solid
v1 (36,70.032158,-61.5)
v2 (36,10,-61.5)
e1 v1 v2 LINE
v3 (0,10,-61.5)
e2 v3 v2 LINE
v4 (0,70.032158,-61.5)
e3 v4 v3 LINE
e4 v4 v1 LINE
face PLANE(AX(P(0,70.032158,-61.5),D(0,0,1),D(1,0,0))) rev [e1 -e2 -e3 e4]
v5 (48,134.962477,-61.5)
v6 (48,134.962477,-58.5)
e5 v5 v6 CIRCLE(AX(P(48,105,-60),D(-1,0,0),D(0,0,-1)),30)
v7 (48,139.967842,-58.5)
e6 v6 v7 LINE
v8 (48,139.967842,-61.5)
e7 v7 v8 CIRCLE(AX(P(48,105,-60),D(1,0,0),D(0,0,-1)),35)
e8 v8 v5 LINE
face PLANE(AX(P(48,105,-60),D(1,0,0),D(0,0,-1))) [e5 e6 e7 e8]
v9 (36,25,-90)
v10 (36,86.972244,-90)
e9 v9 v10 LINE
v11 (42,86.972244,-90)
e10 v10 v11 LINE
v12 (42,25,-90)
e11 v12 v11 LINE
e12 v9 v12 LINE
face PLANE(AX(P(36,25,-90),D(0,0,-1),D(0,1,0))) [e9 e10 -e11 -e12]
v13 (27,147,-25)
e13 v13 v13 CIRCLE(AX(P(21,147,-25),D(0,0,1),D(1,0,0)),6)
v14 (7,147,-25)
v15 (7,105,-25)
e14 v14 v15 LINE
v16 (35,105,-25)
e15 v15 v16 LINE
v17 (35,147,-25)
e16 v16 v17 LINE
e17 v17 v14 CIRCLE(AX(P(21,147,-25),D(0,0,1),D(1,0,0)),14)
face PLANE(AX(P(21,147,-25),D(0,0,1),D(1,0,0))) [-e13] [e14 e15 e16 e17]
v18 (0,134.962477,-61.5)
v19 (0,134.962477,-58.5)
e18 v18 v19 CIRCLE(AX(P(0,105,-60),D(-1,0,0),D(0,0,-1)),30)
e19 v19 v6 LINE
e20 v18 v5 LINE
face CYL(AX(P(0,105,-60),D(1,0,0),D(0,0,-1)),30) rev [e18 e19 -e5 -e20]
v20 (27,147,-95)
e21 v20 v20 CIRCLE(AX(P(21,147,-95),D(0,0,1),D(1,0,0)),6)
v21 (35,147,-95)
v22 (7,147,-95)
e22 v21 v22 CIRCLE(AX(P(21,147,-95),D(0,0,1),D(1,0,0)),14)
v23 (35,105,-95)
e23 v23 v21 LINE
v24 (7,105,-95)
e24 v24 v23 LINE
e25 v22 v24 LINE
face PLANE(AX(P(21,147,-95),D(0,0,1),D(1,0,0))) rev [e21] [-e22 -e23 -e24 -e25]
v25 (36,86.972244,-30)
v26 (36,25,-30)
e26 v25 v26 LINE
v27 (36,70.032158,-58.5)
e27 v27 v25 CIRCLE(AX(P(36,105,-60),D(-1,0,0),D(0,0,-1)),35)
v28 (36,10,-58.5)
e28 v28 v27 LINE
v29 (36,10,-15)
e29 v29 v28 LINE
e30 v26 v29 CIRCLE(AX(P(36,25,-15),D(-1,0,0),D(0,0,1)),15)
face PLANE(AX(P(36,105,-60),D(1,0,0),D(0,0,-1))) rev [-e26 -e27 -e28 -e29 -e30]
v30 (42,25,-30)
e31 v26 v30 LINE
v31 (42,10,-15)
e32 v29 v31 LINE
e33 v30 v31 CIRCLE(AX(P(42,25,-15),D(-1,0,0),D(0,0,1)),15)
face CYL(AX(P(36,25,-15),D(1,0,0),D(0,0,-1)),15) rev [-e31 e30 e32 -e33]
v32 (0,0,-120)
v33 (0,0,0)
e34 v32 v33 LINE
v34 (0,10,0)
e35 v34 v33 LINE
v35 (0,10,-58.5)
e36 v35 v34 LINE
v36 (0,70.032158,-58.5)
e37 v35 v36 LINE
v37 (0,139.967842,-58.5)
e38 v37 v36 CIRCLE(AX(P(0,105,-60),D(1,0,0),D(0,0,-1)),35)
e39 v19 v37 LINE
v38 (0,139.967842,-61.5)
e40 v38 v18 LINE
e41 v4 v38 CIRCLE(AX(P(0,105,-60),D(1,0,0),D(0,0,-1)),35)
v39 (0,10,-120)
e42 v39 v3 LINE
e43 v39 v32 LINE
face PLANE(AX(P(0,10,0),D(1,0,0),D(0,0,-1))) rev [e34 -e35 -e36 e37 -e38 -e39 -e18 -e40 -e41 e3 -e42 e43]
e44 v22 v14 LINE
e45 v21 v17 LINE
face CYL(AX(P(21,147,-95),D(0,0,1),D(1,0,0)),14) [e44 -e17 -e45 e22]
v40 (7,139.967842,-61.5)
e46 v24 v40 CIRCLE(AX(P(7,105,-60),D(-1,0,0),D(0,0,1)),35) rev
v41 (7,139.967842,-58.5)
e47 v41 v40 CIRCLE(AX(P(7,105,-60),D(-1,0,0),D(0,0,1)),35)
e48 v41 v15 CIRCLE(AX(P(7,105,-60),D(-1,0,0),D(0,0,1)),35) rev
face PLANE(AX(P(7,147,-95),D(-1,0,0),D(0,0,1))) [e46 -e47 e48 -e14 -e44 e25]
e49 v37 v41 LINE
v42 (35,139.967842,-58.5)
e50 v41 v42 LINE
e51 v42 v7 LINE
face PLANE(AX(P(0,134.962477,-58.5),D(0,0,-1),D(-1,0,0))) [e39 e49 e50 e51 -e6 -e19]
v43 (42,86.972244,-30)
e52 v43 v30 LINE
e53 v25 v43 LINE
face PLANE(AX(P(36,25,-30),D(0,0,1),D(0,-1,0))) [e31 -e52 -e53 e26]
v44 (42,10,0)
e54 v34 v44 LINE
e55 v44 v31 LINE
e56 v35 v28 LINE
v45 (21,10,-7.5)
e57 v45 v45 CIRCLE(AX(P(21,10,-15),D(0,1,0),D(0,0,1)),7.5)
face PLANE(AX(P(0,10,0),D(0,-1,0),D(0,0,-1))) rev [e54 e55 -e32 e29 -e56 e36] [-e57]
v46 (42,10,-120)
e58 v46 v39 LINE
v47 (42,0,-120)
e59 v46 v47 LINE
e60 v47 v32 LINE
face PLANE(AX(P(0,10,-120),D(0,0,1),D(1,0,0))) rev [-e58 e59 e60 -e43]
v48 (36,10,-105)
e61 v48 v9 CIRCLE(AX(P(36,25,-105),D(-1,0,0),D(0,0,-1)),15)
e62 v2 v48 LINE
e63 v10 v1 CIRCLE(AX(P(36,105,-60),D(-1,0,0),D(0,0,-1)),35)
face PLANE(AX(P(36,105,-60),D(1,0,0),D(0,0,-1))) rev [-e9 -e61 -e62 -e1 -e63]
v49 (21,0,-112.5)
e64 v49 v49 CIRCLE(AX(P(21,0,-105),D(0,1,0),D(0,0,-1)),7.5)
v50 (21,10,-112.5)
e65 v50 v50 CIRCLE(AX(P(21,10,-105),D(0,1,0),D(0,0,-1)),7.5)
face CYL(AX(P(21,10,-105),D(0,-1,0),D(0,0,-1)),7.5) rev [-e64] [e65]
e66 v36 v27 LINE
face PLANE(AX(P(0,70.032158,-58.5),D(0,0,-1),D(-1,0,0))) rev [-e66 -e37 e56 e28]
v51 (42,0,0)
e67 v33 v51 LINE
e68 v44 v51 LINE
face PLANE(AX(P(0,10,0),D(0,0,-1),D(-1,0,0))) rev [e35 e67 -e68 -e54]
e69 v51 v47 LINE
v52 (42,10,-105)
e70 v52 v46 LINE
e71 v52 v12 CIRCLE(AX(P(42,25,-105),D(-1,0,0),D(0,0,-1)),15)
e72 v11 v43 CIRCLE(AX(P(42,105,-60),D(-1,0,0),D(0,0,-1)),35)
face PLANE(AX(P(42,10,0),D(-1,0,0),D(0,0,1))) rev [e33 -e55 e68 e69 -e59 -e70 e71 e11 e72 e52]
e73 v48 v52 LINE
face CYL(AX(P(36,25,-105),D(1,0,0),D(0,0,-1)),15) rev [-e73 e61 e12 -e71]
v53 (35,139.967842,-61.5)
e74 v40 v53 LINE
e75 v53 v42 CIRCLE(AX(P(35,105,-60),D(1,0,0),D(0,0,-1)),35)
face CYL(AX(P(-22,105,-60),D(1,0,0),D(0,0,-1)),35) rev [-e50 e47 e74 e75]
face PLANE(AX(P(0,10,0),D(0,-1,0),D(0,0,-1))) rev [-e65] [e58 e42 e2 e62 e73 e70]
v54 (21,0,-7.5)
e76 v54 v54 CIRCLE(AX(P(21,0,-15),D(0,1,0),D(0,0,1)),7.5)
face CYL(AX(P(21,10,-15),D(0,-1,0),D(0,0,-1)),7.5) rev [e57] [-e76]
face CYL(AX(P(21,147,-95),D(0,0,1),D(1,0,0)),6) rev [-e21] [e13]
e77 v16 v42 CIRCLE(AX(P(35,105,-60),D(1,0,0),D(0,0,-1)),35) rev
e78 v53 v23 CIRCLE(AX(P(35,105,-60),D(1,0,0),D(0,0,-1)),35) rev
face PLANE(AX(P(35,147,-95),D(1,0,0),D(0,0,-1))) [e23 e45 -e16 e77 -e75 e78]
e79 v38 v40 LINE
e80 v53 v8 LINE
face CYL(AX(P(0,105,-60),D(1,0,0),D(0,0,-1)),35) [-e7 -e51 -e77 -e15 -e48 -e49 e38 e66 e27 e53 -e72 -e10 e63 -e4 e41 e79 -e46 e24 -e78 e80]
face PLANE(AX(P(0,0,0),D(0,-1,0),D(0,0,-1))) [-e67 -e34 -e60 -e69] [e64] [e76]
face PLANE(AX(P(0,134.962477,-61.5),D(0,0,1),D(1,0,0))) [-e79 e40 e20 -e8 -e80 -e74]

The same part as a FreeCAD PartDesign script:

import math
import FreeCAD as App
import Part
import Sketcher
from FreeCAD import Vector


def add_polygon(sketch, points):
    """Adds a closed chain of lines whose ends are joined by coincident constraints."""
    first, n = sketch.GeometryCount, len(points)
    for a, b in zip(points, points[1:] + points[:1]):
        sketch.addGeometry(Part.LineSegment(App.Vector(*a, 0), App.Vector(*b, 0)), False)
    for i in range(n):
        sketch.addConstraint(Sketcher.Constraint("Coincident", first + i, 2, first + (i + 1) % n, 1))

doc = App.newDocument("Part")
params = doc.addObject("Spreadsheet::Sheet", "Params")
for row, (alias, value) in enumerate([
    ("sketch1_diameter", "15 mm"),
    ("sketch1_width", "42 mm"),
    ("sketch1_height", "120 mm"),
    ("pad1_length", "10 mm"),
    ("sketch2_radius", "35 mm"),
    ("sketch2_radius2", "15 mm"),
    ("sketch2_height", "90 mm"),
    ("pad2_length", "6 mm"),
    ("sketch3_radius", "30 mm"),
    ("sketch3_radius2", "35 mm"),
    ("pad3_length", "6 mm"),
    ("pad3_length2", "42 mm"),
    ("sketch4_radius", "35 mm"),
    ("sketch4_height", "3 mm"),
    ("pad4_length", "36 mm"),
    ("sketch5_diameter", "12 mm"),
    ("sketch5_radius", "14 mm"),
    ("sketch5_height", "42 mm"),
    ("pad5_length", "70 mm"),
    ("sketch6_radius", "30 mm"),
    ("sketch6_radius2", "35 mm"),
    ("pocket1_length", "70 mm"),
], start=1):
    params.set(f"A{row}", alias)
    params.set(f"B{row}", "=" + value)
    params.setAlias(f"B{row}", alias)

body = doc.addObject("PartDesign::Body", "Body")

# Sketch on XZ plane
sketch1 = body.newObject("Sketcher::SketchObject", "Sketch")
sketch1.AttachmentSupport = (doc.getObject("XZ_Plane"), [""])
sketch1.MapMode = "FlatFace"
add_polygon(sketch1, [(0, -120), (0, 0), (42, 0), (42, -120)])  # lines 0-3
sketch1.addGeometry(Part.Circle(Vector(21, -15, 0), Vector(0, 0, 1), 7.5), False)  # 4
sketch1.addGeometry(Part.Circle(Vector(21, -105, 0), Vector(0, 0, 1), 7.5), False)  # 5
sketch1.addConstraint([
    Sketcher.Constraint("Vertical", 0),
    Sketcher.Constraint("Horizontal", 1),
    Sketcher.Constraint("Vertical", 2),
    Sketcher.Constraint("Horizontal", 3),
    Sketcher.Constraint("Coincident", 0, 2, -1, 1),
    Sketcher.Constraint("Equal", 4, 5),
    Sketcher.Constraint("Vertical", 4, 3, 5, 3),
    Sketcher.Constraint("Diameter", 4, 15.0),
    Sketcher.Constraint("DistanceX", 1, 1, 1, 2, 42.0),
    Sketcher.Constraint("DistanceY", 0, 1, 0, 2, 120.0),
    Sketcher.Constraint("DistanceX", -1, 1, 4, 3, 21.0),
    Sketcher.Constraint("DistanceY", 4, 3, -1, 1, 15.0),
    Sketcher.Constraint("DistanceY", 5, 3, -1, 1, 105.0),
])
sketch1.setExpression("Constraints[11]", "Params.sketch1_diameter")
sketch1.setExpression("Constraints[12]", "Params.sketch1_width")
sketch1.setExpression("Constraints[13]", "Params.sketch1_height")
pad1 = body.newObject("PartDesign::Pad", "Pad")
pad1.Profile = sketch1
pad1.setExpression("Length", "Params.pad1_length")
pad1.Reversed = True

# Sketch on YZ plane
sketch2 = body.newObject("Sketcher::SketchObject", "Sketch001")
sketch2.AttachmentSupport = (doc.getObject("YZ_Plane"), [""])
sketch2.MapMode = "FlatFace"
sketch2.AttachmentOffset = App.Placement(Vector(0, 0, 42), App.Rotation())
sketch2.addGeometry([
    Part.LineSegment(Vector(25, -90, 0), Vector(86.972244, -90, 0)),  # 0
    Part.ArcOfCircle(Part.Circle(Vector(105, -60, 0), Vector(0, 0, 1), 35), math.radians(121.002719), math.radians(238.997281)),  # 1
    Part.LineSegment(Vector(86.972244, -30, 0), Vector(25, -30, 0)),  # 2
    Part.ArcOfCircle(Part.Circle(Vector(25, -15, 0), Vector(0, 0, 1), 15), math.radians(180), math.radians(270)),  # 3
    Part.LineSegment(Vector(10, -15, 0), Vector(10, -105, 0)),  # 4
    Part.ArcOfCircle(Part.Circle(Vector(25, -105, 0), Vector(0, 0, 1), 15), math.radians(90), math.radians(180)),  # 5
], False)
sketch2.addConstraint([
    Sketcher.Constraint("Coincident", 0, 2, 1, 2),
    Sketcher.Constraint("Coincident", 1, 1, 2, 1),
    Sketcher.Constraint("Tangent", 2, 2, 3, 2),
    Sketcher.Constraint("Tangent", 3, 1, 4, 1),
    Sketcher.Constraint("Tangent", 4, 2, 5, 2),
    Sketcher.Constraint("Tangent", 5, 1, 0, 1),
    Sketcher.Constraint("Horizontal", 0),
    Sketcher.Constraint("Horizontal", 2),
    Sketcher.Constraint("Vertical", 4),
    Sketcher.Constraint("Equal", 3, 5),
    Sketcher.Constraint("Vertical", 0, 2, 1, 1),
    Sketcher.Constraint("Radius", 1, 35.0),
    Sketcher.Constraint("Radius", 3, 15.0),
    Sketcher.Constraint("DistanceY", 4, 2, 4, 1, 90.0),
    Sketcher.Constraint("DistanceX", -1, 1, 1, 3, 105.0),
    Sketcher.Constraint("DistanceY", 1, 3, -1, 1, 60.0),
    Sketcher.Constraint("DistanceX", -1, 1, 3, 3, 25.0),
])
sketch2.setExpression("Constraints[11]", "Params.sketch2_radius")
sketch2.setExpression("Constraints[12]", "Params.sketch2_radius2")
sketch2.setExpression("Constraints[13]", "Params.sketch2_height")
pad2 = body.newObject("PartDesign::Pad", "Pad001")
pad2.Profile = sketch2
pad2.setExpression("Length", "Params.pad2_length")
pad2.Reversed = True

# Sketch on YZ plane
sketch3 = body.newObject("Sketcher::SketchObject", "Sketch002")
sketch3.AttachmentSupport = (doc.getObject("YZ_Plane"), [""])
sketch3.MapMode = "FlatFace"
sketch3.AttachmentOffset = App.Placement(Vector(0, 0, 42), App.Rotation())
sketch3.addGeometry([
    Part.LineSegment(Vector(139.967842, -61.5, 0), Vector(134.962477, -61.5, 0)),
    Part.ArcOfCircle(Part.Circle(Vector(105, -60, 0), Vector(0, 0, 1), 30), math.radians(2.865984), math.radians(357.134016)),
    Part.LineSegment(Vector(134.962477, -58.5, 0), Vector(139.967842, -58.5, 0)),
    Part.ArcOfCircle(Part.Circle(Vector(105, -60, 0), Vector(0, 0, 1), 35), math.radians(2.456286), math.radians(357.543714)),
], False)
sketch3.addConstraint([
    Sketcher.Constraint("Coincident", 0, 2, 1, 2),
    Sketcher.Constraint("Coincident", 1, 1, 2, 1),
    Sketcher.Constraint("Coincident", 2, 2, 3, 1),
    Sketcher.Constraint("Coincident", 3, 2, 0, 1),
    Sketcher.Constraint("Horizontal", 0),
    Sketcher.Constraint("Horizontal", 2),
    Sketcher.Constraint("Coincident", 3, 3, 1, 3),
    Sketcher.Constraint("Vertical", 0, 2, 1, 1),
    Sketcher.Constraint("Radius", 1, 30.0),
    Sketcher.Constraint("Radius", 3, 35.0),
    Sketcher.Constraint("DistanceX", -1, 1, 1, 3, 105.0),
    Sketcher.Constraint("DistanceY", 1, 3, -1, 1, 60.0),
    Sketcher.Constraint("DistanceY", 0, 2, 1, 1, 3.0),
])
sketch3.setExpression("Constraints[8]", "Params.sketch3_radius")
sketch3.setExpression("Constraints[9]", "Params.sketch3_radius2")
pad3 = body.newObject("PartDesign::Pad", "Pad002")
pad3.Profile = sketch3
pad3.Type = "TwoLengths"
pad3.setExpression("Length", "Params.pad3_length")
pad3.setExpression("Length2", "Params.pad3_length2")

# Sketch on YZ plane
sketch4 = body.newObject("Sketcher::SketchObject", "Sketch003")
sketch4.AttachmentSupport = (doc.getObject("YZ_Plane"), [""])
sketch4.MapMode = "FlatFace"
sketch4.addGeometry([
    Part.LineSegment(Vector(10, -61.5, 0), Vector(10, -58.5, 0)),
    Part.LineSegment(Vector(10, -58.5, 0), Vector(70.032158, -58.5, 0)),
    Part.ArcOfCircle(Part.Circle(Vector(105, -60, 0), Vector(0, 0, 1), 35), math.radians(177.543714), math.radians(182.456286)),
    Part.LineSegment(Vector(70.032158, -61.5, 0), Vector(10, -61.5, 0)),
], False)
sketch4.addConstraint([
    Sketcher.Constraint("Coincident", 0, 2, 1, 1),
    Sketcher.Constraint("Coincident", 1, 2, 2, 1),
    Sketcher.Constraint("Coincident", 2, 2, 3, 1),
    Sketcher.Constraint("Coincident", 3, 2, 0, 1),
    Sketcher.Constraint("Vertical", 0),
    Sketcher.Constraint("Horizontal", 1),
    Sketcher.Constraint("Horizontal", 3),
    Sketcher.Constraint("Vertical", 1, 2, 2, 2),
    Sketcher.Constraint("Radius", 2, 35.0),
    Sketcher.Constraint("DistanceY", 0, 1, 0, 2, 3.0),
    Sketcher.Constraint("DistanceX", -1, 1, 2, 3, 105.0),
    Sketcher.Constraint("DistanceY", 2, 3, -1, 1, 60.0),
    Sketcher.Constraint("DistanceX", -1, 1, 0, 2, 10.0),
])
sketch4.setExpression("Constraints[8]", "Params.sketch4_radius")
sketch4.setExpression("Constraints[9]", "Params.sketch4_height")
pad4 = body.newObject("PartDesign::Pad", "Pad003")
pad4.Profile = sketch4
pad4.setExpression("Length", "Params.pad4_length")

# Sketch on XY plane
sketch5 = body.newObject("Sketcher::SketchObject", "Sketch004")
sketch5.AttachmentSupport = (doc.getObject("XY_Plane"), [""])
sketch5.MapMode = "FlatFace"
sketch5.AttachmentOffset = App.Placement(Vector(0, 0, -25), App.Rotation())
sketch5.addGeometry([
    Part.LineSegment(Vector(7, 105, 0), Vector(35, 105, 0)),  # 0
    Part.LineSegment(Vector(35, 105, 0), Vector(35, 147, 0)),  # 1
    Part.ArcOfCircle(Part.Circle(Vector(21, 147, 0), Vector(0, 0, 1), 14), math.radians(0), math.radians(180)),  # 2
    Part.LineSegment(Vector(7, 147, 0), Vector(7, 105, 0)),  # 3
    Part.Circle(Vector(21, 147, 0), Vector(0, 0, 1), 6),  # 4
], False)
sketch5.addConstraint([
    Sketcher.Constraint("Coincident", 0, 2, 1, 1),
    Sketcher.Constraint("Tangent", 1, 2, 2, 1),
    Sketcher.Constraint("Tangent", 2, 2, 3, 1),
    Sketcher.Constraint("Coincident", 3, 2, 0, 1),
    Sketcher.Constraint("Horizontal", 0),
    Sketcher.Constraint("Vertical", 1),
    Sketcher.Constraint("Vertical", 3),
    Sketcher.Constraint("Coincident", 4, 3, 2, 3),
    Sketcher.Constraint("Diameter", 4, 12.0),
    Sketcher.Constraint("Radius", 2, 14.0),
    Sketcher.Constraint("DistanceY", 1, 1, 1, 2, 42.0),
    Sketcher.Constraint("DistanceX", -1, 1, 2, 3, 21.0),
    Sketcher.Constraint("DistanceY", -1, 1, 2, 3, 147.0),
])
sketch5.setExpression("Constraints[8]", "Params.sketch5_diameter")
sketch5.setExpression("Constraints[9]", "Params.sketch5_radius")
sketch5.setExpression("Constraints[10]", "Params.sketch5_height")
pad5 = body.newObject("PartDesign::Pad", "Pad004")
pad5.Profile = sketch5
pad5.setExpression("Length", "Params.pad5_length")
pad5.Reversed = True

# Sketch on YZ plane
sketch6 = body.newObject("Sketcher::SketchObject", "Sketch005")
sketch6.AttachmentSupport = (doc.getObject("YZ_Plane"), [""])
sketch6.MapMode = "FlatFace"
sketch6.AttachmentOffset = App.Placement(Vector(0, 0, -22), App.Rotation())
sketch6.addGeometry([
    Part.LineSegment(Vector(139.967842, -58.5, 0), Vector(134.962477, -58.5, 0)),
    Part.ArcOfCircle(Part.Circle(Vector(105, -60, 0), Vector(0, 0, 1), 30), math.radians(2.865984), math.radians(357.134016)),
    Part.LineSegment(Vector(134.962477, -61.5, 0), Vector(139.967842, -61.5, 0)),
    Part.ArcOfCircle(Part.Circle(Vector(105, -60, 0), Vector(0, 0, 1), 35), math.radians(-2.456286), math.radians(2.456286)),
], False)
sketch6.addConstraint([
    Sketcher.Constraint("Coincident", 0, 2, 1, 1),
    Sketcher.Constraint("Coincident", 1, 2, 2, 1),
    Sketcher.Constraint("Coincident", 2, 2, 3, 1),
    Sketcher.Constraint("Coincident", 3, 2, 0, 1),
    Sketcher.Constraint("Horizontal", 0),
    Sketcher.Constraint("Horizontal", 2),
    Sketcher.Constraint("Coincident", 3, 3, 1, 3),
    Sketcher.Constraint("Vertical", 0, 2, 1, 2),
    Sketcher.Constraint("Radius", 1, 30.0),
    Sketcher.Constraint("Radius", 3, 35.0),
    Sketcher.Constraint("DistanceX", -1, 1, 1, 3, 105.0),
    Sketcher.Constraint("DistanceY", 1, 3, -1, 1, 60.0),
    Sketcher.Constraint("DistanceY", 1, 2, 0, 2, 3.0),
])
sketch6.setExpression("Constraints[8]", "Params.sketch6_radius")
sketch6.setExpression("Constraints[9]", "Params.sketch6_radius2")
pocket1 = body.newObject("PartDesign::Pocket", "Pocket")
pocket1.Profile = sketch6
pocket1.setExpression("Length", "Params.pocket1_length")
pocket1.Reversed = True

doc.recompute()
